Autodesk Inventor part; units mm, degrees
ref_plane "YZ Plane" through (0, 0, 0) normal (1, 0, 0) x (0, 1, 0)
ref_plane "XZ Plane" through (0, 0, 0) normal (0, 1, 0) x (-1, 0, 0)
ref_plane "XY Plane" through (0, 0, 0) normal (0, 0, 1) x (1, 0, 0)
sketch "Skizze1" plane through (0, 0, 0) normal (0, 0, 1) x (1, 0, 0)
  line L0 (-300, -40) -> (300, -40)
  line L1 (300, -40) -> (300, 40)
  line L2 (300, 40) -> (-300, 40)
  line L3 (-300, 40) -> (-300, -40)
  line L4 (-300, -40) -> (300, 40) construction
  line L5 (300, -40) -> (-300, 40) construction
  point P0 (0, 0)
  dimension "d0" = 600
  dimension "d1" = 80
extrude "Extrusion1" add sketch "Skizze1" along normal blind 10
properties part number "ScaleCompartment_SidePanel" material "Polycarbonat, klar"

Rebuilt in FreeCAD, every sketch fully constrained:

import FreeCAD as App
import Part
import Sketcher
from FreeCAD import Vector
Q = App.Units.Quantity

doc = App.newDocument("Part")
body = doc.addObject("PartDesign::Body", "Body")

sketch1 = doc.addObject("Sketcher::SketchObject", "Sketch")
body.addObject(sketch1)
sketch1.AttachmentSupport = (doc.XY_Plane, [""])
sketch1.MapMode = "FlatFace"
sketch1.addGeometry(Part.LineSegment(Vector(-300, 40, 0), Vector(-300, -40, 0)), False)
sketch1.addGeometry(Part.LineSegment(Vector(-300, -40, 0), Vector(300, -40, 0)), False)
sketch1.addGeometry(Part.LineSegment(Vector(300, -40, 0), Vector(300, 40, 0)), False)
sketch1.addGeometry(Part.LineSegment(Vector(300, 40, 0), Vector(-300, 40, 0)), False)
sketch1.addConstraint(Sketcher.Constraint("Coincident", 0, 2, 1, 1))
sketch1.addConstraint(Sketcher.Constraint("Coincident", 1, 2, 2, 1))
sketch1.addConstraint(Sketcher.Constraint("Coincident", 2, 2, 3, 1))
sketch1.addConstraint(Sketcher.Constraint("Coincident", 3, 2, 0, 1))
sketch1.addConstraint(Sketcher.Constraint("Vertical", 0))
sketch1.addConstraint(Sketcher.Constraint("Horizontal", 1))
sketch1.addConstraint(Sketcher.Constraint("Vertical", 2))
sketch1.addConstraint(Sketcher.Constraint("Horizontal", 3))
sketch1.addConstraint(Sketcher.Constraint("Symmetric", 0, 2, 2, 2, -1, 1))
sketch1.addConstraint(Sketcher.Constraint("DistanceX", 1, 1, 1, 2, Q("600 mm")))
sketch1.addConstraint(Sketcher.Constraint("DistanceY", 0, 2, 0, 1, Q("80 mm")))
pad1 = doc.addObject("PartDesign::Pad", "Pad")
body.addObject(pad1)
pad1.Profile = sketch1
pad1.Length = 10

doc.recompute()
